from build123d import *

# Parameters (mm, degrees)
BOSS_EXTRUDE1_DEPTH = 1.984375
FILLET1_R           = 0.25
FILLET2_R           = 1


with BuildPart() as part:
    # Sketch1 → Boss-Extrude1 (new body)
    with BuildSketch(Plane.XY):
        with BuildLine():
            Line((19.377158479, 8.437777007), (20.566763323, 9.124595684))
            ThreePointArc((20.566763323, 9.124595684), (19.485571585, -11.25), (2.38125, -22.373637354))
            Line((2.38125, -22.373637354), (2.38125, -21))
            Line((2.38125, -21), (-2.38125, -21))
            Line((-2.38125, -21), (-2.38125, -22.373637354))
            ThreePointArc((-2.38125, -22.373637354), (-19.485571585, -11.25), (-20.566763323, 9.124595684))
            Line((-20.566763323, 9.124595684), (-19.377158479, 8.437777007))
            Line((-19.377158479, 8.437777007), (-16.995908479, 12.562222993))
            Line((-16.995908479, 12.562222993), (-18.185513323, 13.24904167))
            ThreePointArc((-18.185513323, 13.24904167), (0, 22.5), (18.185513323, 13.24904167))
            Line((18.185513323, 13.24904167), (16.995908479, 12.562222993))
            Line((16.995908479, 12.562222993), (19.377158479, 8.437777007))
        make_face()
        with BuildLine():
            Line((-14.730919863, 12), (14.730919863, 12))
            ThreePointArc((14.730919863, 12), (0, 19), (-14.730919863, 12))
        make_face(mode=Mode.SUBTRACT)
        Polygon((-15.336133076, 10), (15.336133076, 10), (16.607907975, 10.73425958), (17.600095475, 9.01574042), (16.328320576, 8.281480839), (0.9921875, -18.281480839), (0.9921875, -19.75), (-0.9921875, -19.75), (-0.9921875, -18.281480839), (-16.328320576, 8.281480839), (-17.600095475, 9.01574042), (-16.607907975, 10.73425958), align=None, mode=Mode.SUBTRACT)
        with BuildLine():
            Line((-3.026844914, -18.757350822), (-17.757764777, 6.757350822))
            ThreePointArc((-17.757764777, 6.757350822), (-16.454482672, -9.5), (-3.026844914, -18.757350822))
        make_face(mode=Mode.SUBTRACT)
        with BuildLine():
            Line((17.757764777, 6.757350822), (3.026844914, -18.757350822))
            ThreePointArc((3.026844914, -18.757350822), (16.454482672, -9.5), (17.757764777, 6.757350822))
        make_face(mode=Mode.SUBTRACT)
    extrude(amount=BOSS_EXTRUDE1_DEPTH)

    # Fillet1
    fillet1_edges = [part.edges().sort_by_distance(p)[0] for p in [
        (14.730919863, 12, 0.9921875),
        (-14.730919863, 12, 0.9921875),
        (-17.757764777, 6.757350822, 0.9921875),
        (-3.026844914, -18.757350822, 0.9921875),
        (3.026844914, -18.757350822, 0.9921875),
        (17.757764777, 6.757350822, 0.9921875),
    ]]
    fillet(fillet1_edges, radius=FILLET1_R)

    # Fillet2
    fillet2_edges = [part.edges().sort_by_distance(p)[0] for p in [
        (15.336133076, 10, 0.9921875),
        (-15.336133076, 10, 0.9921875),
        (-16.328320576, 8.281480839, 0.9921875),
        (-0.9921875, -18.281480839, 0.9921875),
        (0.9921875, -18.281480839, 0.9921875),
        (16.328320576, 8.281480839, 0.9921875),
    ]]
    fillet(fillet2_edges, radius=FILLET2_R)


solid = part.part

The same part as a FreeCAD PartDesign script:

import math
import FreeCAD as App
import Part
import Sketcher

V = App.Vector
Q = App.Units.Quantity


def edges_at(feature, points):
    """Names of the edges that pass closest to the given points."""
    edges = feature.Shape.Edges
    near = lambda p: min(range(len(edges)), key=lambda i: edges[i].distToShape(Part.Vertex(*p))[0])
    return sorted({f"Edge{near(p) + 1}" for p in points})


def add_polygon(sketch, points):
    """Adds a closed chain of lines whose ends are joined by coincident constraints."""
    first, n = sketch.GeometryCount, len(points)
    for a, b in zip(points, points[1:] + points[:1]):
        sketch.addGeometry(Part.LineSegment(App.Vector(*a, 0), App.Vector(*b, 0)), False)
    for i in range(n):
        sketch.addConstraint(Sketcher.Constraint("Coincident", first + i, 2, first + (i + 1) % n, 1))

doc = App.newDocument("Part")
body = doc.addObject("PartDesign::Body", "Body")

sketch1 = doc.addObject("Sketcher::SketchObject", "Sketch")
body.addObject(sketch1)
sketch1.AttachmentSupport = (doc.XY_Plane, [""])
sketch1.MapMode = "FlatFace"
sketch1.addGeometry(Part.LineSegment(V(20.6, 9.1, 0), V(19.4, 8.4, 0)), False)
sketch1.addGeometry(Part.LineSegment(V(19.4, 8.4, 0), V(17, 12.6, 0)), False)
sketch1.addGeometry(Part.LineSegment(V(17, 12.6, 0), V(18.2, 13.2, 0)), False)
sketch1.addGeometry(Part.ArcOfCircle(Part.Circle(V(0, 0, 0), V(0, 0, 1), 22.5), math.radians(36), math.radians(144)), False)
sketch1.addGeometry(Part.LineSegment(V(-18.2, 13.2, 0), V(-17, 12.6, 0)), False)
sketch1.addGeometry(Part.LineSegment(V(-17, 12.6, 0), V(-19.4, 8.4, 0)), False)
sketch1.addGeometry(Part.LineSegment(V(-19.4, 8.4, 0), V(-20.6, 9.1, 0)), False)
sketch1.addGeometry(Part.ArcOfCircle(Part.Circle(V(0, 0, 0), V(0, 0, 1), 22.5), math.radians(156), math.radians(264)), False)
sketch1.addGeometry(Part.LineSegment(V(-2.4, -22.4, 0), V(-2.4, -21, 0)), False)
sketch1.addGeometry(Part.LineSegment(V(-2.4, -21, 0), V(2.4, -21, 0)), False)
sketch1.addGeometry(Part.LineSegment(V(2.4, -21, 0), V(2.4, -22.4, 0)), False)
sketch1.addGeometry(Part.ArcOfCircle(Part.Circle(V(0, 0, 0), V(0, 0, 1), 22.5), math.radians(-84), math.radians(24)), False)
sketch1.addGeometry(Part.ArcOfCircle(Part.Circle(V(0, 0, 0), V(0, 0, 1), 19), math.radians(-81), math.radians(21)), False)
sketch1.addGeometry(Part.LineSegment(V(3, -18.8, 0), V(17.8, 6.8, 0)), False)
add_polygon(sketch1, [(-15.3, 10), (15.3, 10), (16.6, 10.7), (17.6, 9), (16.3, 8.3), (1, -18.3), (1, -19.8), (-1, -19.8), (-1, -18.3), (-16.3, 8.3), (-17.6, 9), (-16.6, 10.7)])
sketch1.addGeometry(Part.ArcOfCircle(Part.Circle(V(0, 0, 0), V(0, 0, 1), 19), math.radians(159), math.radians(261)), False)
sketch1.addGeometry(Part.LineSegment(V(-17.8, 6.8, 0), V(-3, -18.8, 0)), False)
sketch1.addGeometry(Part.ArcOfCircle(Part.Circle(V(0, 0, 0), V(0, 0, 1), 19), math.radians(39), math.radians(141)), False)
sketch1.addGeometry(Part.LineSegment(V(14.7, 12, 0), V(-14.7, 12, 0)), False)
sketch1.addConstraint([
    Sketcher.Constraint("Coincident", 0, 2, 1, 1),
    Sketcher.Constraint("Coincident", 1, 2, 2, 1),
    Sketcher.Constraint("Coincident", 2, 2, 3, 1),
    Sketcher.Constraint("Coincident", 3, 2, 4, 1),
    Sketcher.Constraint("Coincident", 4, 2, 5, 1),
    Sketcher.Constraint("Coincident", 5, 2, 6, 1),
    Sketcher.Constraint("Coincident", 6, 2, 7, 1),
    Sketcher.Constraint("Coincident", 7, 2, 8, 1),
    Sketcher.Constraint("Coincident", 8, 2, 9, 1),
    Sketcher.Constraint("Coincident", 9, 2, 10, 1),
    Sketcher.Constraint("Coincident", 10, 2, 11, 1),
    Sketcher.Constraint("Coincident", 11, 2, 0, 1),
    Sketcher.Constraint("Coincident", 12, 1, 13, 1),
    Sketcher.Constraint("Coincident", 13, 2, 12, 2),
    Sketcher.Constraint("Coincident", 26, 1, 27, 1),
    Sketcher.Constraint("Coincident", 27, 2, 26, 2),
    Sketcher.Constraint("Coincident", 28, 1, 29, 1),
    Sketcher.Constraint("Coincident", 29, 2, 28, 2),
    Sketcher.Constraint("Vertical", 8),
    Sketcher.Constraint("Horizontal", 9),
    Sketcher.Constraint("Vertical", 10),
    Sketcher.Constraint("Horizontal", 14),
    Sketcher.Constraint("Vertical", 19),
    Sketcher.Constraint("Horizontal", 20),
    Sketcher.Constraint("Vertical", 21),
    Sketcher.Constraint("Horizontal", 29),
    Sketcher.Constraint("Coincident", 3, 3, -1, 1),
    Sketcher.Constraint("Coincident", 7, 3, -1, 1),
    Sketcher.Constraint("Coincident", 11, 3, -1, 1),
    Sketcher.Constraint("Coincident", 12, 3, -1, 1),
    Sketcher.Constraint("Coincident", 26, 3, -1, 1),
    Sketcher.Constraint("Coincident", 28, 3, -1, 1),
    Sketcher.Constraint("Equal", 3, 7),
    Sketcher.Constraint("Equal", 7, 11),
    Sketcher.Constraint("Equal", 12, 26),
    Sketcher.Constraint("Equal", 26, 28),
    Sketcher.Constraint("Symmetric", 1, 2, 4, 2, -2),
    Sketcher.Constraint("Symmetric", 0, 2, 5, 2, -2),
    Sketcher.Constraint("Symmetric", 18, 2, 21, 2, -2),
    Sketcher.Constraint("Symmetric", 17, 2, 22, 2, -2),
    Sketcher.Constraint("Symmetric", 16, 2, 23, 2, -2),
    Sketcher.Constraint("Symmetric", 15, 2, 24, 2, -2),
    Sketcher.Constraint("Perpendicular", 0, 1),
    Sketcher.Constraint("Perpendicular", 1, 2),
    Sketcher.Constraint("Perpendicular", 4, 5),
    Sketcher.Constraint("Perpendicular", 5, 6),
    Sketcher.Constraint("Perpendicular", 6, 13),
    Sketcher.Constraint("Parallel", 2, 15),
    Sketcher.Constraint("Perpendicular", 15, 16),
    Sketcher.Constraint("Perpendicular", 16, 17),
    Sketcher.Constraint("Parallel", 13, 18),
    Sketcher.Constraint("Perpendicular", 24, 25),
    Sketcher.Constraint("Parallel", 22, 27),
    Sketcher.Constraint("Horizontal", 7, 2, 10, 2),
    Sketcher.Constraint("Horizontal", 13, 2, 26, 1),
    Sketcher.Constraint("Equal", 0, 2),
    Sketcher.Constraint("Equal", 15, 17),
    Sketcher.Constraint("Radius", 12, 19.0),
    Sketcher.Constraint("Radius", 3, 22.5),
    Sketcher.Constraint("Angle", 0, Q("-150 deg")),
    Sketcher.Constraint("DistanceY", 8, 2, -1, 1, 21.0),
    Sketcher.Constraint("DistanceY", -1, 1, 14, 2, 10.0),
    Sketcher.Constraint("DistanceY", -1, 1, 28, 1, 12.0),
    Sketcher.Constraint("DistanceY", 19, 2, -1, 1, 19.75),
    Sketcher.Constraint("DistanceX", 9, 1, 9, 2, 4.7625),
    Sketcher.Constraint("DistanceX", 13, 2, 11, 2, 2.808999),
    Sketcher.Constraint("DistanceX", 15, 2, 1, 2, 0.388001),
    Sketcher.Constraint("Distance", 1, 4.7625),
    Sketcher.Constraint("DistanceY", 19, 2, 19, 1, 1.468519),
    Sketcher.Constraint("DistanceY", 23, 2, 3, 2, 4.233301),
    Sketcher.Constraint("DistanceX", 28, 1, 17, 2, 1.597401),
    Sketcher.Constraint("Distance", 15, 1.468519),
])
pad1 = doc.addObject("PartDesign::Pad", "Pad")
body.addObject(pad1)
pad1.Profile = sketch1
pad1.Length = 1.984375
doc.recompute()

fillet = doc.addObject("PartDesign::Fillet", "Fillet")
body.addObject(fillet)
fillet.Base = (pad1, edges_at(pad1, [
    (14.731, 12, 0.992),
    (-14.731, 12, 0.992),
    (-17.758, 6.757, 0.992),
    (-3.027, -18.757, 0.992),
    (3.027, -18.757, 0.992),
    (17.758, 6.757, 0.992),
]))
fillet.Radius = 0.25
doc.recompute()

fillet2 = doc.addObject("PartDesign::Fillet", "Fillet001")
body.addObject(fillet2)
fillet2.Base = (fillet, edges_at(fillet, [
    (15.336, 10, 0.992),
    (-15.336, 10, 0.992),
    (-16.328, 8.281, 0.992),
    (-0.992, -18.281, 0.992),
    (0.992, -18.281, 0.992),
    (16.328, 8.281, 0.992),
]))
fillet2.Radius = 1

doc.recompute()
